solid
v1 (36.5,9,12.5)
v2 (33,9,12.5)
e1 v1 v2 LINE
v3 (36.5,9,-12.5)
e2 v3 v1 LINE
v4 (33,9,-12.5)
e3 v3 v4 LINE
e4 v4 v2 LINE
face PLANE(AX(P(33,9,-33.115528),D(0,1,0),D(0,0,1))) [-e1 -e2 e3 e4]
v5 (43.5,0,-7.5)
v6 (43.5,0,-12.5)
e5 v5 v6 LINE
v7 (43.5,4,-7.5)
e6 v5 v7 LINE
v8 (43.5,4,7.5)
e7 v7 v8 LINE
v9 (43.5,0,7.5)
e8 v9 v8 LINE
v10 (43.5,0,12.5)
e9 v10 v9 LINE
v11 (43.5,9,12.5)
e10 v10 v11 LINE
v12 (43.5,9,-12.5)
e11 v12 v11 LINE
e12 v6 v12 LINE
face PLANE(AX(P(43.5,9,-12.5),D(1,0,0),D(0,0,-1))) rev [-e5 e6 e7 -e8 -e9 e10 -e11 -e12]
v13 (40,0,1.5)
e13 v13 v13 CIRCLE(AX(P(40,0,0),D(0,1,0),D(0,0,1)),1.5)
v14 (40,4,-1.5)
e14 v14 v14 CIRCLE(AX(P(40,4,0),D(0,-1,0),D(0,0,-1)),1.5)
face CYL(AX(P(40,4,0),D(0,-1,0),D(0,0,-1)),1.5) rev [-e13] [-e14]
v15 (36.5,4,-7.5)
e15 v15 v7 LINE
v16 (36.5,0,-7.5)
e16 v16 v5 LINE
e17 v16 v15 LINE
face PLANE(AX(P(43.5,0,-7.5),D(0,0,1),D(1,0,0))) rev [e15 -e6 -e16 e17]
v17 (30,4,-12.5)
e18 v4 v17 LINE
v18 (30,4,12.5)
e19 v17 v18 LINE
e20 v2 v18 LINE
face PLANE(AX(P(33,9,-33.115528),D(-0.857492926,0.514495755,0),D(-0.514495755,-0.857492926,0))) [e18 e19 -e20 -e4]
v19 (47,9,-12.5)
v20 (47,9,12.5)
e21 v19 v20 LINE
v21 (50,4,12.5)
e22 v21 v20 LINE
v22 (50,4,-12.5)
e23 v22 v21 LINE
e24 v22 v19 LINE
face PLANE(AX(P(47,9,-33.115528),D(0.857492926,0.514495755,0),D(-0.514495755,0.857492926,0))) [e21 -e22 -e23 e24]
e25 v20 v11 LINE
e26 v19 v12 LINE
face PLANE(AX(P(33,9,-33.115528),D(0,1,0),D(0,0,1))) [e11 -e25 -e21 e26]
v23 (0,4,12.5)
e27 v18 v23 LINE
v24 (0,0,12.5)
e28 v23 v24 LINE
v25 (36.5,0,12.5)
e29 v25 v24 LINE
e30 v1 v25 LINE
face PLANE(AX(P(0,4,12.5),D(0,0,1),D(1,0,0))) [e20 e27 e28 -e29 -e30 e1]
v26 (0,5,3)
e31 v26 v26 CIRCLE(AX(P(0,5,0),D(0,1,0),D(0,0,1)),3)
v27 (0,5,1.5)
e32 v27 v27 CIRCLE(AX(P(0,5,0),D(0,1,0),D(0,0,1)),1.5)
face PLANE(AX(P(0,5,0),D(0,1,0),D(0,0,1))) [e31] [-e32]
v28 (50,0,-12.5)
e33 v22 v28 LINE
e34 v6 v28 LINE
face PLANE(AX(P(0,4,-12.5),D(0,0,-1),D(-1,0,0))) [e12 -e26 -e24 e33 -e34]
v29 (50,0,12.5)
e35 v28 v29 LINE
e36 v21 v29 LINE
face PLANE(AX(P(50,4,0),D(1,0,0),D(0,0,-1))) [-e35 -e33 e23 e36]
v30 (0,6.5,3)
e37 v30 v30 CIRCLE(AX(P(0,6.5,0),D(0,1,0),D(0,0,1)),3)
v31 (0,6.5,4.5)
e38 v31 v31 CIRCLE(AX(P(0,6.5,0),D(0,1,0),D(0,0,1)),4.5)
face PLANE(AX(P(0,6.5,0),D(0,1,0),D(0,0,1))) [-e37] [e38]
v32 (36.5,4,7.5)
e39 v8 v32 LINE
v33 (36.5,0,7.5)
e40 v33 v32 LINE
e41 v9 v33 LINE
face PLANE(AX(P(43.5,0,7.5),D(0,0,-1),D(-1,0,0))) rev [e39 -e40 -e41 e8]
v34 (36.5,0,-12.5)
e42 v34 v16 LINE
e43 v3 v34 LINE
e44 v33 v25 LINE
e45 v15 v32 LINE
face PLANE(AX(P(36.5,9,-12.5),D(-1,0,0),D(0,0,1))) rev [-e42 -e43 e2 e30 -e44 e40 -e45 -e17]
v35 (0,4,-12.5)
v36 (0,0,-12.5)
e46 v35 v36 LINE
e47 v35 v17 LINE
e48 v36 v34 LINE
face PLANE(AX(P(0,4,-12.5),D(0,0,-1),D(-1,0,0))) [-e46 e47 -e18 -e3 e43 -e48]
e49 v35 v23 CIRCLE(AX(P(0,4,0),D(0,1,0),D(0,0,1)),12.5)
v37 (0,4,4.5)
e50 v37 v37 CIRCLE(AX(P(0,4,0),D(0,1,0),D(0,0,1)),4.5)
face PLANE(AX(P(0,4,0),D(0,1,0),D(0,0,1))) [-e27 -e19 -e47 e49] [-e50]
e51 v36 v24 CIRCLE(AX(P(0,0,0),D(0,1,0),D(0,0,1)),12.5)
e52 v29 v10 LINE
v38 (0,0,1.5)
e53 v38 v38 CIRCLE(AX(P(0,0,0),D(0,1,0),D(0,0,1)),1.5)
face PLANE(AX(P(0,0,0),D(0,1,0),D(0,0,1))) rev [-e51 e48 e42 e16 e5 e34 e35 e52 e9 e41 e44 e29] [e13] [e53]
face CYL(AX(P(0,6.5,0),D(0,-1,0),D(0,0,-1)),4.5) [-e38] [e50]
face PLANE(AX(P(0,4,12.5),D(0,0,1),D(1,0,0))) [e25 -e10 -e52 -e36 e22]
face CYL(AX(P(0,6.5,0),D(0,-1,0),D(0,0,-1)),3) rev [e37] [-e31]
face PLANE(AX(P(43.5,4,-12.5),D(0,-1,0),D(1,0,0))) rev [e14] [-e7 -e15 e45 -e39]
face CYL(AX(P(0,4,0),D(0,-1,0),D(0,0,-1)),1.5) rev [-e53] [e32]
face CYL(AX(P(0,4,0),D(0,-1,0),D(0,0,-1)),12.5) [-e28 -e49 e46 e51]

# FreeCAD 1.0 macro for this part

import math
import FreeCAD as App
import Part
import Sketcher
from FreeCAD import Vector
Q = App.Units.Quantity


def add_polygon(sketch, points):
    """Adds a closed chain of lines whose ends are joined by coincident constraints."""
    first, n = sketch.GeometryCount, len(points)
    for a, b in zip(points, points[1:] + points[:1]):
        sketch.addGeometry(Part.LineSegment(App.Vector(*a, 0), App.Vector(*b, 0)), False)
    for i in range(n):
        sketch.addConstraint(Sketcher.Constraint("Coincident", first + i, 2, first + (i + 1) % n, 1))

doc = App.newDocument("Part")
body = doc.addObject("PartDesign::Body", "Body")

# Sketch on XZ plane
sketch1 = doc.addObject("Sketcher::SketchObject", "Sketch")
body.addObject(sketch1)
sketch1.AttachmentSupport = (doc.XZ_Plane, [""])
sketch1.MapMode = "FlatFace"
sketch1.addGeometry(Part.LineSegment(Vector(50, -12.5, 0), Vector(0, -12.5, 0)), False)
sketch1.addGeometry(Part.ArcOfCircle(Part.Circle(Vector(0, 0, 0), Vector(0, 0, 1), 12.5), math.radians(180), math.radians(270)), False)
sketch1.addGeometry(Part.ArcOfCircle(Part.Circle(Vector(0, 0, 0), Vector(0, 0, 1), 12.5), math.radians(90), math.radians(180)), False)
sketch1.addGeometry(Part.LineSegment(Vector(0, 12.5, 0), Vector(50, 12.5, 0)), False)
sketch1.addGeometry(Part.LineSegment(Vector(50, 12.5, 0), Vector(50, -12.5, 0)), False)
sketch1.addGeometry(Part.Circle(Vector(40, 0, 0), Vector(0, 0, 1), 1.5), False)
sketch1.addGeometry(Part.Circle(Vector(0, 0, 0), Vector(0, 0, 1), 1.5), False)
sketch1.addConstraint(Sketcher.Constraint("Tangent", 0, 2, 1, 2))
sketch1.addConstraint(Sketcher.Constraint("Tangent", 1, 1, 2, 2))
sketch1.addConstraint(Sketcher.Constraint("Tangent", 2, 1, 3, 1))
sketch1.addConstraint(Sketcher.Constraint("Coincident", 3, 2, 4, 1))
sketch1.addConstraint(Sketcher.Constraint("Coincident", 4, 2, 0, 1))
sketch1.addConstraint(Sketcher.Constraint("Horizontal", 0))
sketch1.addConstraint(Sketcher.Constraint("Horizontal", 3))
sketch1.addConstraint(Sketcher.Constraint("Vertical", 4))
sketch1.addConstraint(Sketcher.Constraint("Coincident", 1, 3, -1, 1))
sketch1.addConstraint(Sketcher.Constraint("Coincident", 6, 3, -1, 1))
sketch1.addConstraint(Sketcher.Constraint("Equal", 1, 2))
sketch1.addConstraint(Sketcher.Constraint("Equal", 5, 6))
sketch1.addConstraint(Sketcher.Constraint("PointOnObject", 5, 3, -1))
sketch1.addConstraint(Sketcher.Constraint("PointOnObject", 1, 1, -1))
sketch1.addConstraint(Sketcher.Constraint("Diameter", 5, Q("3 mm")))
sketch1.addConstraint(Sketcher.Constraint("Radius", 1, Q("12.5 mm")))
sketch1.addConstraint(Sketcher.Constraint("DistanceX", 0, 2, 0, 1, Q("50 mm")))
sketch1.addConstraint(Sketcher.Constraint("DistanceX", -1, 1, 5, 3, Q("40 mm")))
pad1 = doc.addObject("PartDesign::Pad", "Pad")
body.addObject(pad1)
pad1.Profile = sketch1
pad1.Length = 4
pad1.Reversed = True

# Sketch on XZ plane
sketch2 = doc.addObject("Sketcher::SketchObject", "Sketch001")
body.addObject(sketch2)
sketch2.AttachmentSupport = (doc.XZ_Plane, [""])
sketch2.MapMode = "FlatFace"
sketch2.AttachmentOffset = App.Placement(Vector(0, 0, -4), App.Rotation())
sketch2.addGeometry(Part.Circle(Vector(0, 0, 0), Vector(0, 0, 1), 4.5), False)
sketch2.addGeometry(Part.Circle(Vector(0, 0, 0), Vector(0, 0, 1), 3), False)
sketch2.addConstraint(Sketcher.Constraint("Coincident", 0, 3, -1, 1))
sketch2.addConstraint(Sketcher.Constraint("Coincident", 1, 3, -1, 1))
sketch2.addConstraint(Sketcher.Constraint("Diameter", 0, Q("9 mm")))
sketch2.addConstraint(Sketcher.Constraint("Diameter", 1, Q("6 mm")))
pad2 = doc.addObject("PartDesign::Pad", "Pad001")
body.addObject(pad2)
pad2.Profile = sketch2
pad2.Length = 2.5
pad2.Reversed = True

# Sketch on XY plane
sketch3 = doc.addObject("Sketcher::SketchObject", "Sketch002")
body.addObject(sketch3)
sketch3.AttachmentSupport = (doc.XY_Plane, [""])
sketch3.MapMode = "FlatFace"
sketch3.AttachmentOffset = App.Placement(Vector(0, 0, 12.5), App.Rotation())
add_polygon(sketch3, [(47, 9), (33, 9), (30, 4), (50, 4)])  # lines 0-3
sketch3.addConstraint(Sketcher.Constraint("Horizontal", 0))
sketch3.addConstraint(Sketcher.Constraint("Horizontal", 2))
sketch3.addConstraint(Sketcher.Constraint("Equal", 1, 3))
sketch3.addConstraint(Sketcher.Constraint("DistanceX", 0, 2, 0, 1, Q("14 mm")))
sketch3.addConstraint(Sketcher.Constraint("DistanceX", 2, 1, 2, 2, Q("20 mm")))
sketch3.addConstraint(Sketcher.Constraint("DistanceX", -1, 1, 0, 2, Q("33 mm")))
sketch3.addConstraint(Sketcher.Constraint("DistanceY", -1, 1, 0, 2, Q("9 mm")))
sketch3.addConstraint(Sketcher.Constraint("DistanceY", -1, 1, 1, 2, Q("4 mm")))
pad3 = doc.addObject("PartDesign::Pad", "Pad002")
body.addObject(pad3)
pad3.Profile = sketch3
pad3.Length = 25
pad3.Reversed = True

# Sketch on XY plane
sketch4 = doc.addObject("Sketcher::SketchObject", "Sketch003")
body.addObject(sketch4)
sketch4.AttachmentSupport = (doc.XY_Plane, [""])
sketch4.MapMode = "FlatFace"
sketch4.AttachmentOffset = App.Placement(Vector(0, 0, 12.5), App.Rotation())
add_polygon(sketch4, [(36.5, 9), (36.5, 4), (43.5, 4), (43.5, 9)])  # lines 0-3
sketch4.addConstraint(Sketcher.Constraint("Vertical", 0))
sketch4.addConstraint(Sketcher.Constraint("Horizontal", 1))
sketch4.addConstraint(Sketcher.Constraint("Vertical", 2))
sketch4.addConstraint(Sketcher.Constraint("Horizontal", 3))
sketch4.addConstraint(Sketcher.Constraint("DistanceX", 1, 1, 1, 2, Q("7 mm")))
sketch4.addConstraint(Sketcher.Constraint("DistanceY", 0, 2, 0, 1, Q("5 mm")))
sketch4.addConstraint(Sketcher.Constraint("DistanceY", -1, 1, 0, 2, Q("4 mm")))
sketch4.addConstraint(Sketcher.Constraint("DistanceX", -1, 1, 0, 2, Q("36.5 mm")))
pocket1 = doc.addObject("PartDesign::Pocket", "Pocket")
body.addObject(pocket1)
pocket1.Profile = sketch4
pocket1.Type = "ThroughAll"

# Sketch on XZ plane
sketch5 = doc.addObject("Sketcher::SketchObject", "Sketch004")
body.addObject(sketch5)
sketch5.AttachmentSupport = (doc.XZ_Plane, [""])
sketch5.MapMode = "FlatFace"
sketch5.AttachmentOffset = App.Placement(Vector(0, 0, -4), App.Rotation())
add_polygon(sketch5, [(36.5, 7.5), (36.5, 12.5), (43.5, 12.5), (43.5, 7.5)])  # lines 0-3
add_polygon(sketch5, [(36.5, -12.5), (36.5, -7.5), (43.5, -7.5), (43.5, -12.5)])  # lines 4-7
sketch5.addConstraint(Sketcher.Constraint("Vertical", 0))
sketch5.addConstraint(Sketcher.Constraint("Horizontal", 1))
sketch5.addConstraint(Sketcher.Constraint("Vertical", 2))
sketch5.addConstraint(Sketcher.Constraint("Horizontal", 3))
sketch5.addConstraint(Sketcher.Constraint("Vertical", 4))
sketch5.addConstraint(Sketcher.Constraint("Horizontal", 5))
sketch5.addConstraint(Sketcher.Constraint("Vertical", 6))
sketch5.addConstraint(Sketcher.Constraint("Horizontal", 7))
sketch5.addConstraint(Sketcher.Constraint("Symmetric", 3, 2, 4, 2, -1))
sketch5.addConstraint(Sketcher.Constraint("Symmetric", 1, 2, 6, 2, -1))
sketch5.addConstraint(Sketcher.Constraint("DistanceX", 1, 1, 1, 2, Q("7 mm")))
sketch5.addConstraint(Sketcher.Constraint("DistanceY", 0, 1, 0, 2, Q("5 mm")))
sketch5.addConstraint(Sketcher.Constraint("DistanceY", 4, 2, 3, 2, Q("15 mm")))
sketch5.addConstraint(Sketcher.Constraint("DistanceX", -1, 1, 0, 2, Q("36.5 mm")))
pocket2 = doc.addObject("PartDesign::Pocket", "Pocket001")
body.addObject(pocket2)
pocket2.Profile = sketch5
pocket2.Type = "ThroughAll"
pocket2.Reversed = True

# Sketch on XZ plane
sketch6 = doc.addObject("Sketcher::SketchObject", "Sketch005")
body.addObject(sketch6)
sketch6.AttachmentSupport = (doc.XZ_Plane, [""])
sketch6.MapMode = "FlatFace"
sketch6.AttachmentOffset = App.Placement(Vector(0, 0, -4), App.Rotation())
sketch6.addGeometry(Part.Circle(Vector(0, 0, 0), Vector(0, 0, 1), 3), False)
sketch6.addGeometry(Part.Circle(Vector(0, 0, 0), Vector(0, 0, 1), 1.5), False)
sketch6.addConstraint(Sketcher.Constraint("Coincident", 0, 3, -1, 1))
sketch6.addConstraint(Sketcher.Constraint("Coincident", 1, 3, -1, 1))
sketch6.addConstraint(Sketcher.Constraint("Diameter", 0, Q("6 mm")))
sketch6.addConstraint(Sketcher.Constraint("Diameter", 1, Q("3 mm")))
pad4 = doc.addObject("PartDesign::Pad", "Pad003")
body.addObject(pad4)
pad4.Profile = sketch6
pad4.Length = 1
pad4.Reversed = True

doc.recompute()
